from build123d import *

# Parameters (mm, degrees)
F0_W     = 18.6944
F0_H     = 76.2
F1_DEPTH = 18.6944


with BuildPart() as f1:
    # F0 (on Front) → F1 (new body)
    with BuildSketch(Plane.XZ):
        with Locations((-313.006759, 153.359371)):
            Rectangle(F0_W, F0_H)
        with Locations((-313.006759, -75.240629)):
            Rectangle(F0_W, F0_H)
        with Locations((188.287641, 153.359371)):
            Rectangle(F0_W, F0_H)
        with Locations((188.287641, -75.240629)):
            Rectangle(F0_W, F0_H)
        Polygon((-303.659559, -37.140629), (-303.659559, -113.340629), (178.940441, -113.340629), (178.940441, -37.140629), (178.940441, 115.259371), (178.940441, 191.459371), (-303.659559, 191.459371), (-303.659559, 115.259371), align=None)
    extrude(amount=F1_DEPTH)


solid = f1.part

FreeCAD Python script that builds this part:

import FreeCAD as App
import Part
import Sketcher

V = App.Vector
Q = App.Units.Quantity

doc = App.newDocument("Part")
params = doc.addObject("Spreadsheet::Sheet", "Params")
for row, (alias, value) in enumerate([
    ("sketch1_height", "3 in"),
    ("sketch1_height2", "6 in"),
    ("sketch1_width", "0.736 in"),
    ("pad1_length", "0.736 in"),
], start=1):
    params.set(f"A{row}", alias)
    params.set(f"B{row}", "=" + value)
    params.setAlias(f"B{row}", alias)

body = doc.addObject("PartDesign::Body", "Body")

# Sketch on XZ plane
sketch1 = body.newObject("Sketcher::SketchObject", "Sketch")
sketch1.AttachmentSupport = (doc.getObject("XZ_Plane"), [""])
sketch1.MapMode = "FlatFace"
sketch1.addGeometry(Part.LineSegment(V(-322, 191, 0), V(-322, 115, 0)), False)
sketch1.addGeometry(Part.LineSegment(V(-322, 115, 0), V(-304, 115, 0)), False)
sketch1.addGeometry(Part.LineSegment(V(-304, 115, 0), V(-304, -37, 0)), False)
sketch1.addGeometry(Part.LineSegment(V(-304, -37, 0), V(-322, -37, 0)), False)
sketch1.addGeometry(Part.LineSegment(V(-322, -37, 0), V(-322, -113, 0)), False)
sketch1.addGeometry(Part.LineSegment(V(-322, -113, 0), V(198, -113, 0)), False)
sketch1.addGeometry(Part.LineSegment(V(198, -113, 0), V(198, -37, 0)), False)
sketch1.addGeometry(Part.LineSegment(V(198, -37, 0), V(179, -37, 0)), False)
sketch1.addGeometry(Part.LineSegment(V(179, -37, 0), V(179, 115, 0)), False)
sketch1.addGeometry(Part.LineSegment(V(179, 115, 0), V(198, 115, 0)), False)
sketch1.addGeometry(Part.LineSegment(V(198, 115, 0), V(198, 191, 0)), False)
sketch1.addGeometry(Part.LineSegment(V(198, 191, 0), V(-322, 191, 0)), False)
sketch1.addConstraint(Sketcher.Constraint("Coincident", 0, 2, 1, 1))
sketch1.addConstraint(Sketcher.Constraint("Coincident", 1, 2, 2, 1))
sketch1.addConstraint(Sketcher.Constraint("Coincident", 2, 2, 3, 1))
sketch1.addConstraint(Sketcher.Constraint("Coincident", 3, 2, 4, 1))
sketch1.addConstraint(Sketcher.Constraint("Coincident", 4, 2, 5, 1))
sketch1.addConstraint(Sketcher.Constraint("Coincident", 5, 2, 6, 1))
sketch1.addConstraint(Sketcher.Constraint("Coincident", 6, 2, 7, 1))
sketch1.addConstraint(Sketcher.Constraint("Coincident", 7, 2, 8, 1))
sketch1.addConstraint(Sketcher.Constraint("Coincident", 8, 2, 9, 1))
sketch1.addConstraint(Sketcher.Constraint("Coincident", 9, 2, 10, 1))
sketch1.addConstraint(Sketcher.Constraint("Coincident", 10, 2, 11, 1))
sketch1.addConstraint(Sketcher.Constraint("Coincident", 11, 2, 0, 1))
sketch1.addConstraint(Sketcher.Constraint("Vertical", 0))
sketch1.addConstraint(Sketcher.Constraint("Horizontal", 1))
sketch1.addConstraint(Sketcher.Constraint("Vertical", 2))
sketch1.addConstraint(Sketcher.Constraint("Horizontal", 3))
sketch1.addConstraint(Sketcher.Constraint("Vertical", 4))
sketch1.addConstraint(Sketcher.Constraint("Horizontal", 5))
sketch1.addConstraint(Sketcher.Constraint("Vertical", 6))
sketch1.addConstraint(Sketcher.Constraint("Horizontal", 7))
sketch1.addConstraint(Sketcher.Constraint("Vertical", 8))
sketch1.addConstraint(Sketcher.Constraint("Horizontal", 9))
sketch1.addConstraint(Sketcher.Constraint("Vertical", 10))
sketch1.addConstraint(Sketcher.Constraint("Horizontal", 11))
sketch1.addConstraint(Sketcher.Constraint("Horizontal", 3, 2, 6, 2))
sketch1.addConstraint(Sketcher.Constraint("Horizontal", 1, 2, 8, 2))
sketch1.addConstraint(Sketcher.Constraint("Vertical", 0, 2, 3, 2))
sketch1.addConstraint(Sketcher.Constraint("Vertical", 6, 2, 9, 2))
sketch1.addConstraint(Sketcher.Constraint("Equal", 3, 7))
sketch1.addConstraint(Sketcher.Constraint("Equal", 0, 4))
sketch1.addConstraint(Sketcher.Constraint("DistanceY", 0, 2, 0, 1, Q("3 in")))
sketch1.addConstraint(Sketcher.Constraint("DistanceY", 2, 2, 2, 1, Q("6 in")))
sketch1.addConstraint(Sketcher.Constraint("DistanceX", 2, 2, 7, 2, Q("19 in")))
sketch1.addConstraint(Sketcher.Constraint("DistanceX", 1, 1, 1, 2, Q("0.736 in")))
sketch1.addConstraint(Sketcher.Constraint("DistanceX", 0, 2, -1, 1, Q("322.353959 mm")))
sketch1.addConstraint(Sketcher.Constraint("DistanceY", -1, 1, 0, 2, Q("115.259371 mm")))
sketch1.setExpression("Constraints[30]", "Params.sketch1_height")
sketch1.setExpression("Constraints[31]", "Params.sketch1_height2")
sketch1.setExpression("Constraints[33]", "Params.sketch1_width")
pad1 = body.newObject("PartDesign::Pad", "Pad")
pad1.Profile = sketch1
pad1.setExpression("Length", "Params.pad1_length")

doc.recompute()
